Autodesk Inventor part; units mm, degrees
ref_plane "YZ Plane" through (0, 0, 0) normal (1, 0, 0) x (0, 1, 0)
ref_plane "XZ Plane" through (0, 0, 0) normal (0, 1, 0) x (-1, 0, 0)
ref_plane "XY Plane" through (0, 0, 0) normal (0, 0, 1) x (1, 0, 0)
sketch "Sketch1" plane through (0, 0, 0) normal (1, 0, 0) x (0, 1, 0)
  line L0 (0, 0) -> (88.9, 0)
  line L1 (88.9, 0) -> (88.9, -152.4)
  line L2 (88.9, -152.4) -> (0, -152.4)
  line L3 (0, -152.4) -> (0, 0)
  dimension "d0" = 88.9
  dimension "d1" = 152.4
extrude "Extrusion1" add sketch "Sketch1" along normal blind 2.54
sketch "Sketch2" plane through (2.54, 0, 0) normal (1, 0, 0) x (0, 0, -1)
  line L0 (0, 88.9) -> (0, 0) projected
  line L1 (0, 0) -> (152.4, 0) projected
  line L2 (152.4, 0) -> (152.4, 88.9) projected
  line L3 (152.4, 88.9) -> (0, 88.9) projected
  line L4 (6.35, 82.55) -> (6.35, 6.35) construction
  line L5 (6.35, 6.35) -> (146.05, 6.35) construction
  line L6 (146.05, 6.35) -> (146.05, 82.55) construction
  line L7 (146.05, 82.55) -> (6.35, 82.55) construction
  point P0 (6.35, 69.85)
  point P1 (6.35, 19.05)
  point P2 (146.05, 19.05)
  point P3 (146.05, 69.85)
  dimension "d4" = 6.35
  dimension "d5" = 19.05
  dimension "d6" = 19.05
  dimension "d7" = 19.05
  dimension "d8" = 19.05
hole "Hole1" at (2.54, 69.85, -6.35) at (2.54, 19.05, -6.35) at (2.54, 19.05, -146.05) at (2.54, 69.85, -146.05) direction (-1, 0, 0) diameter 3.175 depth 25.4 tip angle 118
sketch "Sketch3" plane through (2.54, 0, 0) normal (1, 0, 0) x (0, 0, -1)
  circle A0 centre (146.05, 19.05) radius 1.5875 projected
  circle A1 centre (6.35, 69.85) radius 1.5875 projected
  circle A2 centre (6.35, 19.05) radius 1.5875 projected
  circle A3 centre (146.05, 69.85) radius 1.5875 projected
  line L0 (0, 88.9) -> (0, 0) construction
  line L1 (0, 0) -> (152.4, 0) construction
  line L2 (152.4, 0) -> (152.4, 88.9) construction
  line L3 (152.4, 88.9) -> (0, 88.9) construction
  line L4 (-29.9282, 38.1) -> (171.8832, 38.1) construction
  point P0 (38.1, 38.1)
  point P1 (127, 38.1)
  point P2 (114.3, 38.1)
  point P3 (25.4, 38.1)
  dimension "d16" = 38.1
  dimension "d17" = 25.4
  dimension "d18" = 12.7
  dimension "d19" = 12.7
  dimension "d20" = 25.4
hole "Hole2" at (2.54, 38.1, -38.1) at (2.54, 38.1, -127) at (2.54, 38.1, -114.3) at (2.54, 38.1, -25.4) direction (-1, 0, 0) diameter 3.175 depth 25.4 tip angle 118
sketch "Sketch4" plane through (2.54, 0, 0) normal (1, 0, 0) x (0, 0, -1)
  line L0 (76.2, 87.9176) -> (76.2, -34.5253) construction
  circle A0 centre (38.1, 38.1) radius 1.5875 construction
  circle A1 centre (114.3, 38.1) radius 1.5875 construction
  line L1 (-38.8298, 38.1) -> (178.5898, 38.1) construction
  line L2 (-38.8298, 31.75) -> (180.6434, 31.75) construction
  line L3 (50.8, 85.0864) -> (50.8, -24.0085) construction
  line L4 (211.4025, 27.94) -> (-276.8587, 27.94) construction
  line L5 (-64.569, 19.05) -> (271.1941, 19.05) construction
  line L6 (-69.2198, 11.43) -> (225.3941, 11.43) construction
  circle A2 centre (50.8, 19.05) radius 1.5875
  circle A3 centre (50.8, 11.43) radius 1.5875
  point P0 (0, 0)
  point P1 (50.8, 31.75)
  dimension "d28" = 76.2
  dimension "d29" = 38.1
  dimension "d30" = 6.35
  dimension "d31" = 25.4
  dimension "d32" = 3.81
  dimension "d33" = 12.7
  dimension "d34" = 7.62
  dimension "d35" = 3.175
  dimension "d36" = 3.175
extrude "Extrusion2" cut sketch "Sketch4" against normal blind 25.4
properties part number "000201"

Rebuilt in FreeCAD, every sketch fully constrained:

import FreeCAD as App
import Part
import Sketcher

V = App.Vector
Q = App.Units.Quantity

doc = App.newDocument("Part")
body = doc.addObject("PartDesign::Body", "Body")

# Sketch on YZ plane
sketch1 = body.newObject("Sketcher::SketchObject", "Sketch")
sketch1.AttachmentSupport = (doc.getObject("YZ_Plane"), [""])
sketch1.MapMode = "FlatFace"
sketch1.addGeometry(Part.LineSegment(V(88.9, 0, 0), V(0, 0, 0)), False)
sketch1.addGeometry(Part.LineSegment(V(0, 0, 0), V(0, -152.4, 0)), False)
sketch1.addGeometry(Part.LineSegment(V(0, -152.4, 0), V(88.9, -152.4, 0)), False)
sketch1.addGeometry(Part.LineSegment(V(88.9, -152.4, 0), V(88.9, 0, 0)), False)
sketch1.addConstraint(Sketcher.Constraint("Coincident", 0, 2, 1, 1))
sketch1.addConstraint(Sketcher.Constraint("Coincident", 1, 2, 2, 1))
sketch1.addConstraint(Sketcher.Constraint("Coincident", 2, 2, 3, 1))
sketch1.addConstraint(Sketcher.Constraint("Coincident", 3, 2, 0, 1))
sketch1.addConstraint(Sketcher.Constraint("Horizontal", 0))
sketch1.addConstraint(Sketcher.Constraint("Vertical", 1))
sketch1.addConstraint(Sketcher.Constraint("Horizontal", 2))
sketch1.addConstraint(Sketcher.Constraint("Vertical", 3))
sketch1.addConstraint(Sketcher.Constraint("Coincident", 0, 2, -1, 1))
sketch1.addConstraint(Sketcher.Constraint("DistanceY", 1, 2, 1, 1, Q("6 in")))
sketch1.addConstraint(Sketcher.Constraint("DistanceX", 0, 2, 0, 1, Q("3.5 in")))
pad1 = body.newObject("PartDesign::Pad", "Pad")
pad1.Profile = sketch1
pad1.Length = Q("0.1 in")

# Sketch on YZ plane
sketch2 = body.newObject("Sketcher::SketchObject", "Sketch001")
sketch2.AttachmentSupport = (doc.getObject("YZ_Plane"), [""])
sketch2.MapMode = "FlatFace"
sketch2.AttachmentOffset = App.Placement(V(0, 0, 0.1 * 25.4), App.Rotation())
sketch2.addGeometry(Part.Circle(V(69.85, -6.35, 0), V(0, 0, 1), 1.5875), False)
sketch2.addGeometry(Part.Circle(V(19.05, -6.35, 0), V(0, 0, 1), 1.5875), False)
sketch2.addGeometry(Part.Circle(V(19.05, -146.05, 0), V(0, 0, 1), 1.5875), False)
sketch2.addGeometry(Part.Circle(V(69.85, -146.05, 0), V(0, 0, 1), 1.5875), False)
sketch2.addConstraint(Sketcher.Constraint("Equal", 0, 1))
sketch2.addConstraint(Sketcher.Constraint("Equal", 1, 2))
sketch2.addConstraint(Sketcher.Constraint("Equal", 2, 3))
sketch2.addConstraint(Sketcher.Constraint("Horizontal", 0, 3, 1, 3))
sketch2.addConstraint(Sketcher.Constraint("Horizontal", 2, 3, 3, 3))
sketch2.addConstraint(Sketcher.Constraint("Vertical", 1, 3, 2, 3))
sketch2.addConstraint(Sketcher.Constraint("Vertical", 0, 3, 3, 3))
sketch2.addConstraint(Sketcher.Constraint("Diameter", 0, Q("0.125 in")))
sketch2.addConstraint(Sketcher.Constraint("DistanceX", 1, 3, 0, 3, Q("2 in")))
sketch2.addConstraint(Sketcher.Constraint("DistanceY", 2, 3, 1, 3, Q("5.5 in")))
sketch2.addConstraint(Sketcher.Constraint("DistanceX", -1, 1, 0, 3, Q("2.75 in")))
sketch2.addConstraint(Sketcher.Constraint("DistanceY", 0, 3, -1, 1, Q("0.25 in")))
doc.recompute()
hole = body.newObject("PartDesign::Hole", "Hole")
hole.Profile = sketch2
hole.ThreadType = "None"
hole.Diameter = Q("0.125 in")
hole.DepthType = "Dimension"
hole.Depth = Q("1 in")
hole.DrillPoint = "Angled"
hole.DrillPointAngle = 118

# Sketch on YZ plane
sketch3 = body.newObject("Sketcher::SketchObject", "Sketch002")
sketch3.AttachmentSupport = (doc.getObject("YZ_Plane"), [""])
sketch3.MapMode = "FlatFace"
sketch3.AttachmentOffset = App.Placement(V(0, 0, 0.1 * 25.4), App.Rotation())
sketch3.addGeometry(Part.Circle(V(38.1, -38.1, 0), V(0, 0, 1), 1.5875), False)
sketch3.addGeometry(Part.Circle(V(38.1, -127, 0), V(0, 0, 1), 1.5875), False)
sketch3.addGeometry(Part.Circle(V(38.1, -114.3, 0), V(0, 0, 1), 1.5875), False)
sketch3.addGeometry(Part.Circle(V(38.1, -25.4, 0), V(0, 0, 1), 1.5875), False)
sketch3.addConstraint(Sketcher.Constraint("Equal", 0, 1))
sketch3.addConstraint(Sketcher.Constraint("Equal", 1, 2))
sketch3.addConstraint(Sketcher.Constraint("Equal", 2, 3))
sketch3.addConstraint(Sketcher.Constraint("Vertical", 0, 3, 1, 3))
sketch3.addConstraint(Sketcher.Constraint("Vertical", 1, 3, 2, 3))
sketch3.addConstraint(Sketcher.Constraint("Vertical", 2, 3, 3, 3))
sketch3.addConstraint(Sketcher.Constraint("Diameter", 0, Q("0.125 in")))
sketch3.addConstraint(Sketcher.Constraint("DistanceY", 1, 3, -1, 1, Q("5 in")))
sketch3.addConstraint(Sketcher.Constraint("DistanceY", 3, 3, -1, 1, Q("1 in")))
sketch3.addConstraint(Sketcher.Constraint("DistanceY", 2, 3, 0, 3, Q("3 in")))
sketch3.addConstraint(Sketcher.Constraint("DistanceX", -1, 1, 0, 3, Q("1.5 in")))
sketch3.addConstraint(Sketcher.Constraint("DistanceY", 0, 3, -1, 1, Q("1.5 in")))
doc.recompute()
hole2 = body.newObject("PartDesign::Hole", "Hole001")
hole2.Profile = sketch3
hole2.ThreadType = "None"
hole2.Diameter = Q("0.125 in")
hole2.DepthType = "Dimension"
hole2.Depth = Q("1 in")
hole2.DrillPoint = "Angled"
hole2.DrillPointAngle = 118

# Sketch on YZ plane
sketch4 = body.newObject("Sketcher::SketchObject", "Sketch003")
sketch4.AttachmentSupport = (doc.getObject("YZ_Plane"), [""])
sketch4.MapMode = "FlatFace"
sketch4.AttachmentOffset = App.Placement(V(0, 0, 0.1 * 25.4), App.Rotation())
sketch4.addGeometry(Part.Circle(V(19.05, -50.8, 0), V(0, 0, 1), 1.5875), False)
sketch4.addGeometry(Part.Circle(V(11.43, -50.8, 0), V(0, 0, 1), 1.5875), False)
sketch4.addConstraint(Sketcher.Constraint("Equal", 0, 1))
sketch4.addConstraint(Sketcher.Constraint("Horizontal", 0, 3, 1, 3))
sketch4.addConstraint(Sketcher.Constraint("Diameter", 0, Q("0.125 in")))
sketch4.addConstraint(Sketcher.Constraint("DistanceX", 1, 3, 0, 3, Q("0.3 in")))
sketch4.addConstraint(Sketcher.Constraint("DistanceY", 0, 3, -1, 1, Q("2 in")))
sketch4.addConstraint(Sketcher.Constraint("DistanceX", -1, 1, 0, 3, Q("0.75 in")))
pocket1 = body.newObject("PartDesign::Pocket", "Pocket")
pocket1.Profile = sketch4
pocket1.Length = Q("1 in")

doc.recompute()
